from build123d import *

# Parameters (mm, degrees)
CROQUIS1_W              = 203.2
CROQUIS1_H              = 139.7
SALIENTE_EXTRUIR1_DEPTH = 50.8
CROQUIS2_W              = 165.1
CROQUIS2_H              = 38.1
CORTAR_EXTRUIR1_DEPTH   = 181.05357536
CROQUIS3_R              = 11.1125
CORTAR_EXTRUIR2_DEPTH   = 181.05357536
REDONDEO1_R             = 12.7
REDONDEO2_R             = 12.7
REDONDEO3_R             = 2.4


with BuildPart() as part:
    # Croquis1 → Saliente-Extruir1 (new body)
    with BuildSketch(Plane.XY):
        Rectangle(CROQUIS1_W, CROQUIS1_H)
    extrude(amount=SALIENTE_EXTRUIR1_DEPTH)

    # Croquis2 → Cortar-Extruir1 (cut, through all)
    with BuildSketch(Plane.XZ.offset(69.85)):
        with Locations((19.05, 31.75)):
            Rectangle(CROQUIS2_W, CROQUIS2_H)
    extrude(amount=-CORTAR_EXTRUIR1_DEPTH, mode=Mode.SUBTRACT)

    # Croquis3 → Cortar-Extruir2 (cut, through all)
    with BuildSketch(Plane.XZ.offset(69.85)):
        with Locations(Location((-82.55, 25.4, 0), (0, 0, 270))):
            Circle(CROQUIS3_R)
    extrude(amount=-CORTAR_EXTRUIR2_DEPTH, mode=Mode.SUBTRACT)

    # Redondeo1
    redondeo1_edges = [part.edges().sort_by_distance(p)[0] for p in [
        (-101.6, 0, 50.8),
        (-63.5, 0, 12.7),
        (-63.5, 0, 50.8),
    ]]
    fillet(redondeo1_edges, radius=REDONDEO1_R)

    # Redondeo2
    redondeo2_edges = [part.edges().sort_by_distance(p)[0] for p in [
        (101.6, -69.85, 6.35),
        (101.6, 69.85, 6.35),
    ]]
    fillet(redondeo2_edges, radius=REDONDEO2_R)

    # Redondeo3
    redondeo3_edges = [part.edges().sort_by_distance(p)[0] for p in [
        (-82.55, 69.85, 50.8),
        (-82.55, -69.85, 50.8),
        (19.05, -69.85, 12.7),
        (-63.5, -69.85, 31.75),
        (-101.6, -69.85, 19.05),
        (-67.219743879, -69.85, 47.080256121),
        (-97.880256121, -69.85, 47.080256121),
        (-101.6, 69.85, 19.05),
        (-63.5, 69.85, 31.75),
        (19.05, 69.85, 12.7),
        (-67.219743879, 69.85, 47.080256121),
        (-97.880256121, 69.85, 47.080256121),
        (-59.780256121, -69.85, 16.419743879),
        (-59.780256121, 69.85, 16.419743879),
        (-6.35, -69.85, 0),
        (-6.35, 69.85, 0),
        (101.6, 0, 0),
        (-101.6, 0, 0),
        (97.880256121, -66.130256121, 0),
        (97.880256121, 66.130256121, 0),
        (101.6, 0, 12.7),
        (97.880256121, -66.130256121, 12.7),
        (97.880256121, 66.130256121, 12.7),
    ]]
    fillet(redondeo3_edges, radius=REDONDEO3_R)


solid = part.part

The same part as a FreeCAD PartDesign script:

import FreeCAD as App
import Part
import Sketcher
from FreeCAD import Vector
Q = App.Units.Quantity


def edges_at(feature, points):
    """Names of the edges that pass closest to the given points."""
    edges = feature.Shape.Edges
    near = lambda p: min(range(len(edges)), key=lambda i: edges[i].distToShape(Part.Vertex(*p))[0])
    return sorted({f"Edge{near(p) + 1}" for p in points})


def add_polygon(sketch, points):
    """Adds a closed chain of lines whose ends are joined by coincident constraints."""
    first, n = sketch.GeometryCount, len(points)
    for a, b in zip(points, points[1:] + points[:1]):
        sketch.addGeometry(Part.LineSegment(App.Vector(*a, 0), App.Vector(*b, 0)), False)
    for i in range(n):
        sketch.addConstraint(Sketcher.Constraint("Coincident", first + i, 2, first + (i + 1) % n, 1))

doc = App.newDocument("Part")
body = doc.addObject("PartDesign::Body", "Body")

sketch1 = body.newObject("Sketcher::SketchObject", "Sketch")
sketch1.AttachmentSupport = (doc.getObject("XY_Plane"), [""])
sketch1.MapMode = "FlatFace"
add_polygon(sketch1, [(-102, 70), (-102, -70), (102, -70), (102, 70)])
sketch1.addConstraint([
    Sketcher.Constraint("Vertical", 0),
    Sketcher.Constraint("Horizontal", 1),
    Sketcher.Constraint("Vertical", 2),
    Sketcher.Constraint("Horizontal", 3),
    Sketcher.Constraint("Symmetric", 0, 2, 2, 2, -1, 1),
    Sketcher.Constraint("DistanceX", 1, 1, 1, 2, Q("8 in")),
    Sketcher.Constraint("DistanceY", 0, 2, 0, 1, Q("5.5 in")),
])
pad1 = body.newObject("PartDesign::Pad", "Pad")
pad1.Profile = sketch1
pad1.Length = Q("2 in")

sketch2 = body.newObject("Sketcher::SketchObject", "Sketch001")
sketch2.AttachmentSupport = (doc.getObject("XZ_Plane"), [""])
sketch2.MapMode = "FlatFace"
sketch2.AttachmentOffset = App.Placement(Vector(0, 0, 2.75 * 25.4), App.Rotation())
add_polygon(sketch2, [(-64, 51), (-64, 13), (102, 13), (102, 51)])
sketch2.addConstraint([
    Sketcher.Constraint("Vertical", 0),
    Sketcher.Constraint("Horizontal", 1),
    Sketcher.Constraint("Vertical", 2),
    Sketcher.Constraint("Horizontal", 3),
    Sketcher.Constraint("DistanceX", 1, 1, 1, 2, Q("6.5 in")),
    Sketcher.Constraint("DistanceY", 0, 2, 0, 1, Q("1.5 in")),
    Sketcher.Constraint("DistanceX", -1, 1, 1, 2, Q("4 in")),
    Sketcher.Constraint("DistanceY", -1, 1, 2, 2, Q("2 in")),
])
pocket1 = body.newObject("PartDesign::Pocket", "Pocket")
pocket1.Profile = sketch2
pocket1.Type = "ThroughAll"

sketch3 = body.newObject("Sketcher::SketchObject", "Sketch002")
sketch3.AttachmentSupport = (doc.getObject("XZ_Plane"), [""])
sketch3.MapMode = "FlatFace"
sketch3.AttachmentOffset = App.Placement(Vector(0, 0, 2.75 * 25.4), App.Rotation())
sketch3.addGeometry(Part.Circle(Vector(-83, 25, 0), Vector(0, 0, 1), 11), False)
sketch3.addConstraint([
    Sketcher.Constraint("Diameter", 0, Q("0.875 in")),
    Sketcher.Constraint("DistanceY", -1, 1, 0, 3, Q("1 in")),
    Sketcher.Constraint("DistanceX", 0, 3, -1, 1, Q("3.25 in")),
])
pocket2 = body.newObject("PartDesign::Pocket", "Pocket001")
pocket2.Profile = sketch3
pocket2.Type = "ThroughAll"
doc.recompute()

fillet = body.newObject("PartDesign::Fillet", "Fillet")
fillet.Base = (pocket2, edges_at(pocket2, [(-101.6, 0, 50.8), (-63.5, 0, 12.7), (-63.5, 0, 50.8)]))
fillet.Radius = Q("0.5 in")
doc.recompute()

fillet2 = body.newObject("PartDesign::Fillet", "Fillet001")
fillet2.Base = (fillet, edges_at(fillet, [(101.6, -69.85, 6.35), (101.6, 69.85, 6.35)]))
fillet2.Radius = Q("0.5 in")
doc.recompute()

fillet3 = body.newObject("PartDesign::Fillet", "Fillet002")
fillet3.Base = (fillet2, edges_at(fillet2, [
    (-82.55, 69.85, 50.8),
    (-82.55, -69.85, 50.8),
    (19.05, -69.85, 12.7),
    (-63.5, -69.85, 31.75),
    (-101.6, -69.85, 19.05),
    (-67.22, -69.85, 47.08),
    (-97.88, -69.85, 47.08),
    (-101.6, 69.85, 19.05),
    (-63.5, 69.85, 31.75),
    (19.05, 69.85, 12.7),
    (-67.22, 69.85, 47.08),
    (-97.88, 69.85, 47.08),
    (-59.78, -69.85, 16.42),
    (-59.78, 69.85, 16.42),
    (-6.35, -69.85, 0),
    (-6.35, 69.85, 0),
    (101.6, 0, 0),
    (-101.6, 0, 0),
    (97.88, -66.13, 0),
    (97.88, 66.13, 0),
    (101.6, 0, 12.7),
    (97.88, -66.13, 12.7),
    (97.88, 66.13, 12.7),
]))
fillet3.Radius = 2.4

doc.recompute()
